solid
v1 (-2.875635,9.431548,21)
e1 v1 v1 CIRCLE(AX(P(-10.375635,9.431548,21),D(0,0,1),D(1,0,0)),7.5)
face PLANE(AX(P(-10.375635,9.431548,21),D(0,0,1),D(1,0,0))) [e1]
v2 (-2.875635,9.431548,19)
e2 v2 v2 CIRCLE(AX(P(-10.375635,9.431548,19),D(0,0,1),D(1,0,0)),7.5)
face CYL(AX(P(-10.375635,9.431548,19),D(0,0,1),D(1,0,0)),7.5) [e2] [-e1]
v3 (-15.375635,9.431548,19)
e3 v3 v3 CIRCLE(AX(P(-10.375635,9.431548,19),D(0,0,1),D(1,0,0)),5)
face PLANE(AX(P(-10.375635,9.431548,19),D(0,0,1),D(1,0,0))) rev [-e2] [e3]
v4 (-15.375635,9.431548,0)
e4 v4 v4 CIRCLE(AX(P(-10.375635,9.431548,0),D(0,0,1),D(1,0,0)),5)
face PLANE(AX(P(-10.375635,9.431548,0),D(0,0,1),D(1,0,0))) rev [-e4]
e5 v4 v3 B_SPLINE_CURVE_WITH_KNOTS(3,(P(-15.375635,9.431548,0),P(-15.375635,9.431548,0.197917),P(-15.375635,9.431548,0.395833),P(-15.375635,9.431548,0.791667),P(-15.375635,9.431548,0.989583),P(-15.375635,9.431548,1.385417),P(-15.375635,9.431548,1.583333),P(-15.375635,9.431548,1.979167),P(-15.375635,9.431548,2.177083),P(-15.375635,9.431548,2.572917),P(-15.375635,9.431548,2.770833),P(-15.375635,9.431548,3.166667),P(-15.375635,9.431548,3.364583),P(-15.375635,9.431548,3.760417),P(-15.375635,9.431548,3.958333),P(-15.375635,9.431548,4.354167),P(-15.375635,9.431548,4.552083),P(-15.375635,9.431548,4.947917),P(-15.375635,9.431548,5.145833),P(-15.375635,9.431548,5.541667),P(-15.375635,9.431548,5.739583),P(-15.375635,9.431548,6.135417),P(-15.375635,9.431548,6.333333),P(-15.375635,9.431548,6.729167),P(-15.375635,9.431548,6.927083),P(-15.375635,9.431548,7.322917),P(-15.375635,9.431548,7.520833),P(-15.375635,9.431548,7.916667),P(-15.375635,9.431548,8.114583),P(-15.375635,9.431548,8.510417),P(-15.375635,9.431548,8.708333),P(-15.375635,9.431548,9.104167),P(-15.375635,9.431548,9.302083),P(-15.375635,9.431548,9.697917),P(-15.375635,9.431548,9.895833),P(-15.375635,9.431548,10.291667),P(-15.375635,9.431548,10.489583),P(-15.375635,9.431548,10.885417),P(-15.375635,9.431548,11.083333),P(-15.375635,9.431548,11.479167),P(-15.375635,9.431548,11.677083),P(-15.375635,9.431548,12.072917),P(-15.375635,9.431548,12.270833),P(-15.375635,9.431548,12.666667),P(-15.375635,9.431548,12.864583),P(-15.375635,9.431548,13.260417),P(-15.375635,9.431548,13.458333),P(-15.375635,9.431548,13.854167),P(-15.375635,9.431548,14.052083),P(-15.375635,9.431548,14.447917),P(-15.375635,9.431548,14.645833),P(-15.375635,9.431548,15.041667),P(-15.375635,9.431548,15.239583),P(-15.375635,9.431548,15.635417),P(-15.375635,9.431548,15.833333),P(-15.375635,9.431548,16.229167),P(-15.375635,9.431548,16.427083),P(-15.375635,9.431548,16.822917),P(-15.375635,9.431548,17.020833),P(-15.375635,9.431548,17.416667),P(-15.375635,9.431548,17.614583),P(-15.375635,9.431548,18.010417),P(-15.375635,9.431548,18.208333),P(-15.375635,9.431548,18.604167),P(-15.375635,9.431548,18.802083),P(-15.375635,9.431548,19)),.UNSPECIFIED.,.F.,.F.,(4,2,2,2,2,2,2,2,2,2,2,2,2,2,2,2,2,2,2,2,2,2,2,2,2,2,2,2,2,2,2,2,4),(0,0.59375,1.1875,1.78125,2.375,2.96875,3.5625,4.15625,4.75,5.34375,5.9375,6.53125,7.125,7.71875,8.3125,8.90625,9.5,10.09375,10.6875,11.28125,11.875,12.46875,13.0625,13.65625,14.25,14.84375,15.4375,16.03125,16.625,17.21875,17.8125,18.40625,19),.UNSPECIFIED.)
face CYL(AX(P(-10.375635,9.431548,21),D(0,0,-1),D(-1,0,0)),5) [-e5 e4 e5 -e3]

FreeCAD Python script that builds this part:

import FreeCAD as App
import Part
import Sketcher
from FreeCAD import Vector

doc = App.newDocument("Part")
body = doc.addObject("PartDesign::Body", "Body")

sketch1 = body.newObject("Sketcher::SketchObject", "Sketch")
sketch1.AttachmentSupport = (doc.getObject("XY_Plane"), [""])
sketch1.MapMode = "FlatFace"
sketch1.addGeometry(Part.Circle(Vector(-10.375635, 9.431548, 0), Vector(0, 0, 1), 5), False)
sketch1.addConstraint([
    Sketcher.Constraint("Diameter", 0, 10.0),
    Sketcher.Constraint("DistanceX", 0, 3, -1, 1, 10.375635),
    Sketcher.Constraint("DistanceY", -1, 1, 0, 3, 9.431548),
])
pad1 = body.newObject("PartDesign::Pad", "Pad")
pad1.Profile = sketch1
pad1.Length = 21

sketch2 = body.newObject("Sketcher::SketchObject", "Sketch001")
sketch2.AttachmentSupport = (doc.getObject("XY_Plane"), [""])
sketch2.MapMode = "FlatFace"
sketch2.AttachmentOffset = App.Placement(Vector(0, 0, 21), App.Rotation())
sketch2.addGeometry(Part.Circle(Vector(-10.375635, 9.431548, 0), Vector(0, 0, 1), 7.5), False)
sketch2.addConstraint([
    Sketcher.Constraint("Diameter", 0, 15.0),
    Sketcher.Constraint("DistanceX", 0, 3, -1, 1, 10.375635),
    Sketcher.Constraint("DistanceY", -1, 1, 0, 3, 9.431548),
])
pad2 = body.newObject("PartDesign::Pad", "Pad001")
pad2.Profile = sketch2
pad2.Length = 2
pad2.Reversed = True

doc.recompute()
